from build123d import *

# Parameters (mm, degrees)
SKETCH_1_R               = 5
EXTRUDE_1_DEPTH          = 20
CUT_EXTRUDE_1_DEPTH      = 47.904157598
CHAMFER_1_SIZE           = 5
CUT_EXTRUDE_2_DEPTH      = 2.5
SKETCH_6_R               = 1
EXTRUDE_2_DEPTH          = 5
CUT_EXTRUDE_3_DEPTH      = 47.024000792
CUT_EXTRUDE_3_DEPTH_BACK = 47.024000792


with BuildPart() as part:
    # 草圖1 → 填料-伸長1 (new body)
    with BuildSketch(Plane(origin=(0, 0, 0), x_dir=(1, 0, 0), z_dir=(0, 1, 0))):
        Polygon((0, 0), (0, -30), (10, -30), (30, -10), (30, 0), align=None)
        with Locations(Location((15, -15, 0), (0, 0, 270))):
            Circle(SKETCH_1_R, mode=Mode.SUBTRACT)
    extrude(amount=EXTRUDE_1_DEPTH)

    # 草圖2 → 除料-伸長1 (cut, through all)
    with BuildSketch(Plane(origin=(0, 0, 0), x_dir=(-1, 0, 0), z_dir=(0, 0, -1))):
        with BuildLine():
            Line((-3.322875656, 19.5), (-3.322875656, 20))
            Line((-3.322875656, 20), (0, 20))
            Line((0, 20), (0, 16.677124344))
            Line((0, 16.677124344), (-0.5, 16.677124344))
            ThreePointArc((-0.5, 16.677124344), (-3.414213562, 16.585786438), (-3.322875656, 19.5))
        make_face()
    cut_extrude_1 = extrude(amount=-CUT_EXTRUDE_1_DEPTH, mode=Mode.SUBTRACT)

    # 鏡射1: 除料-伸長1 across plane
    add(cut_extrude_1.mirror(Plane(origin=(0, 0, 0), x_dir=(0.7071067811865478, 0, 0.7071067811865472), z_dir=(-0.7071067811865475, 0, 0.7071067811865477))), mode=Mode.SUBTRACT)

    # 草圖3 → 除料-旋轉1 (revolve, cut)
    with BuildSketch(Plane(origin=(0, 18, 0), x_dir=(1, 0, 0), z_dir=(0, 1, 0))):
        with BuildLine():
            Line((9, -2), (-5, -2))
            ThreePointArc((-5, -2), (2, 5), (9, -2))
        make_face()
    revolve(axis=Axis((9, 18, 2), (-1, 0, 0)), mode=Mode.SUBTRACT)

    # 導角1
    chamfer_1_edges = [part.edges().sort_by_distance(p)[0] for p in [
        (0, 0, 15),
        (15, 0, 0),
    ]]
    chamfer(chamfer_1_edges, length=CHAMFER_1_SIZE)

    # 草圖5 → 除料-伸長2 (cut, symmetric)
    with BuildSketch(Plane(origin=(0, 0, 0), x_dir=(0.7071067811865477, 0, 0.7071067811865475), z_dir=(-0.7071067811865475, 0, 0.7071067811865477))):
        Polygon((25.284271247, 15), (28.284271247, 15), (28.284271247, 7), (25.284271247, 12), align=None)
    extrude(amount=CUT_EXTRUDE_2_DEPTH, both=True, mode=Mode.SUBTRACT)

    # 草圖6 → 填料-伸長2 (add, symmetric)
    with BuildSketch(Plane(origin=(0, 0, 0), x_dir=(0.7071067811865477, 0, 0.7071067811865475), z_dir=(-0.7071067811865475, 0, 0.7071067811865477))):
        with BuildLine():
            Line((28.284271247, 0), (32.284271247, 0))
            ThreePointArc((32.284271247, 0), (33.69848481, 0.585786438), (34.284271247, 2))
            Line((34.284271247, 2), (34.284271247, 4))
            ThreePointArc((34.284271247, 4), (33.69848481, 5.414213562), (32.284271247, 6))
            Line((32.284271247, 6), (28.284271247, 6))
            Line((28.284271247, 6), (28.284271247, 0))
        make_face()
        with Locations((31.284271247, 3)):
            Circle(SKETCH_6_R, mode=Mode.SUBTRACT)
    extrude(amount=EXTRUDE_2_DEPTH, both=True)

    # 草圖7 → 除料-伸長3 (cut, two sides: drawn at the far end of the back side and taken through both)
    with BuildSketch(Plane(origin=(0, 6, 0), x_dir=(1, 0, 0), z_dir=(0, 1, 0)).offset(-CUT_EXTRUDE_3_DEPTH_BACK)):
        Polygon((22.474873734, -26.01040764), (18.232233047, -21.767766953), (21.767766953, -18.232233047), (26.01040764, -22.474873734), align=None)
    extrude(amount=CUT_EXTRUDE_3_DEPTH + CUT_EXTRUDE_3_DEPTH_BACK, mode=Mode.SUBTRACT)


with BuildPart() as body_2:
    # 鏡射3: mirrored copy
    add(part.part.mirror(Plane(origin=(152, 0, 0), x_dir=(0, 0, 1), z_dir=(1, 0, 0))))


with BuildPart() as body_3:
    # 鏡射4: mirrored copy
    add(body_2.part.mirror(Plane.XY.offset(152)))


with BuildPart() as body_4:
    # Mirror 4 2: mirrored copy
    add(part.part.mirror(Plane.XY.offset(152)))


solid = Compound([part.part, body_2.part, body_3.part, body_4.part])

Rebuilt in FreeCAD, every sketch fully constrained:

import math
import FreeCAD as App
import Part
import Sketcher

V = App.Vector
Q = App.Units.Quantity


def edges_at(feature, points):
    """Names of the edges that pass closest to the given points."""
    edges = feature.Shape.Edges
    near = lambda p: min(range(len(edges)), key=lambda i: edges[i].distToShape(Part.Vertex(*p))[0])
    return sorted({f"Edge{near(p) + 1}" for p in points})

doc = App.newDocument("Part")
body = doc.addObject("PartDesign::Body", "Body")

sketch1 = body.newObject("Sketcher::SketchObject", "Sketch")
sketch1.AttachmentSupport = (doc.getObject("XZ_Plane"), [""])
sketch1.MapMode = "FlatFace"
sketch1.addGeometry(Part.LineSegment(V(0, 0, 0), V(0, 30, 0)), False)
sketch1.addGeometry(Part.LineSegment(V(0, 30, 0), V(10, 30, 0)), False)
sketch1.addGeometry(Part.LineSegment(V(10, 30, 0), V(30, 10, 0)), False)
sketch1.addGeometry(Part.LineSegment(V(30, 10, 0), V(30, 0, 0)), False)
sketch1.addGeometry(Part.LineSegment(V(30, 0, 0), V(0, 0, 0)), False)
sketch1.addGeometry(Part.Circle(V(15, 15, 0), V(0, 0, 1), 5), False)
sketch1.addConstraint(Sketcher.Constraint("Coincident", 0, 2, 1, 1))
sketch1.addConstraint(Sketcher.Constraint("Coincident", 1, 2, 2, 1))
sketch1.addConstraint(Sketcher.Constraint("Coincident", 2, 2, 3, 1))
sketch1.addConstraint(Sketcher.Constraint("Coincident", 3, 2, 4, 1))
sketch1.addConstraint(Sketcher.Constraint("Coincident", 4, 2, 0, 1))
sketch1.addConstraint(Sketcher.Constraint("Vertical", 0))
sketch1.addConstraint(Sketcher.Constraint("Horizontal", 1))
sketch1.addConstraint(Sketcher.Constraint("Vertical", 3))
sketch1.addConstraint(Sketcher.Constraint("Horizontal", 4))
sketch1.addConstraint(Sketcher.Constraint("Coincident", 4, 2, -1, 1))
sketch1.addConstraint(Sketcher.Constraint("Equal", 4, 0))
sketch1.addConstraint(Sketcher.Constraint("Equal", 1, 3))
sketch1.addConstraint(Sketcher.Constraint("Diameter", 5, Q("10 mm")))
sketch1.addConstraint(Sketcher.Constraint("DistanceX", 1, 1, 1, 2, Q("10 mm")))
sketch1.addConstraint(Sketcher.Constraint("DistanceX", 4, 2, 4, 1, Q("30 mm")))
sketch1.addConstraint(Sketcher.Constraint("DistanceX", -1, 1, 5, 3, Q("15 mm")))
sketch1.addConstraint(Sketcher.Constraint("DistanceY", -1, 1, 5, 3, Q("15 mm")))
pad1 = body.newObject("PartDesign::Pad", "Pad")
pad1.Profile = sketch1
pad1.Length = 20
pad1.Reversed = True

sketch2 = body.newObject("Sketcher::SketchObject", "Sketch001")
sketch2.AttachmentSupport = (doc.getObject("XY_Plane"), [""])
sketch2.MapMode = "FlatFace"
sketch2.addGeometry(Part.LineSegment(V(3.322876, 20, 0), V(3.322876, 19.5, 0)), False)
sketch2.addGeometry(Part.ArcOfCircle(Part.Circle(V(2, 18, 0), V(0, 0, 1), 2), math.radians(-138.590378), math.radians(48.590378)), False)
sketch2.addGeometry(Part.LineSegment(V(0.5, 16.677124, 0), V(0, 16.677124, 0)), False)
sketch2.addGeometry(Part.LineSegment(V(0, 16.677124, 0), V(0, 20, 0)), False)
sketch2.addGeometry(Part.LineSegment(V(0, 20, 0), V(3.322876, 20, 0)), False)
sketch2.addConstraint(Sketcher.Constraint("Coincident", 0, 2, 1, 2))
sketch2.addConstraint(Sketcher.Constraint("Coincident", 1, 1, 2, 1))
sketch2.addConstraint(Sketcher.Constraint("Coincident", 2, 2, 3, 1))
sketch2.addConstraint(Sketcher.Constraint("Coincident", 3, 2, 4, 1))
sketch2.addConstraint(Sketcher.Constraint("Coincident", 4, 2, 0, 1))
sketch2.addConstraint(Sketcher.Constraint("Vertical", 0))
sketch2.addConstraint(Sketcher.Constraint("Horizontal", 2))
sketch2.addConstraint(Sketcher.Constraint("Vertical", 3))
sketch2.addConstraint(Sketcher.Constraint("Horizontal", 4))
sketch2.addConstraint(Sketcher.Constraint("PointOnObject", 2, 2, -2))
sketch2.addConstraint(Sketcher.Constraint("Equal", 2, 0))
sketch2.addConstraint(Sketcher.Constraint("Equal", 4, 3))
sketch2.addConstraint(Sketcher.Constraint("Radius", 1, Q("2 mm")))
sketch2.addConstraint(Sketcher.Constraint("DistanceX", 2, 2, 2, 1, Q("0.5 mm")))
sketch2.addConstraint(Sketcher.Constraint("DistanceX", -1, 1, 1, 3, Q("2 mm")))
sketch2.addConstraint(Sketcher.Constraint("DistanceY", -1, 1, 1, 3, Q("18 mm")))
pocket1 = body.newObject("PartDesign::Pocket", "Pocket")
pocket1.Profile = sketch2
pocket1.Type = "ThroughAll"
pocket1.Reversed = True
doc.recompute()

datumplane = body.newObject("PartDesign::Plane", "DatumPlane")
datumplane.Placement = App.Placement(V(0, 0, 0), App.Rotation(V(-0.707106781, 0, -0.707106781), V(0, -1, 0), V(-0.707106781, 0, 0.707106781), "ZXY"))
mirrored = body.newObject("PartDesign::Mirrored", "Mirrored")
mirrored.Originals = [pocket1]
mirrored.MirrorPlane = (datumplane, [""])
body.Tip = mirrored

sketch3 = body.newObject("Sketcher::SketchObject", "Sketch002")
sketch3.AttachmentSupport = (doc.getObject("XZ_Plane"), [""])
sketch3.MapMode = "FlatFace"
sketch3.AttachmentOffset = App.Placement(V(0, 0, -18), App.Rotation())
sketch3.addGeometry(Part.LineSegment(V(-5, 2, 0), V(9, 2, 0)), False)
sketch3.addGeometry(Part.ArcOfCircle(Part.Circle(V(2, 2, 0), V(0, 0, 1), 7), math.radians(180), math.radians(360)), False)
sketch3.addGeometry(Part.LineSegment(V(9, 2, 0), V(-5, 2, 0)), True)
sketch3.addConstraint(Sketcher.Constraint("Coincident", 0, 1, 1, 1))
sketch3.addConstraint(Sketcher.Constraint("Coincident", 1, 2, 0, 2))
sketch3.addConstraint(Sketcher.Constraint("Horizontal", 0))
sketch3.addConstraint(Sketcher.Constraint("Horizontal", 2))
sketch3.addConstraint(Sketcher.Constraint("Coincident", 2, 1, 1, 2))
sketch3.addConstraint(Sketcher.Constraint("Horizontal", 1, 3, 0, 1))
sketch3.addConstraint(Sketcher.Constraint("Equal", 0, 2))
sketch3.addConstraint(Sketcher.Constraint("Radius", 1, Q("7 mm")))
sketch3.addConstraint(Sketcher.Constraint("DistanceX", -1, 1, 1, 3, Q("2 mm")))
sketch3.addConstraint(Sketcher.Constraint("DistanceY", -1, 1, 1, 3, Q("2 mm")))
groove = body.newObject("PartDesign::Groove", "Groove")
groove.Profile = sketch3
groove.ReferenceAxis = (sketch3, ["Axis0"])
groove.Angle = 360
doc.recompute()

chamfer = body.newObject("PartDesign::Chamfer", "Chamfer")
chamfer.Base = (groove, edges_at(groove, [(0, 0, 15), (15, 0, 0)]))
chamfer.Size = 5

sketch4 = body.newObject("Sketcher::SketchObject", "Sketch003")
sketch4.Placement = App.Placement(V(0, 0, 0), App.Rotation(V(0.707106781, 0, 0.707106781), V(0, 0.999999999, 0), V(-0.707106781, 0, 0.707106781), "ZXY"))
sketch4.addGeometry(Part.LineSegment(V(28.284271, 15, 0), V(25.284271, 15, 0)), False)
sketch4.addGeometry(Part.LineSegment(V(25.284271, 15, 0), V(25.284271, 12, 0)), False)
sketch4.addGeometry(Part.LineSegment(V(25.284271, 12, 0), V(28.284271, 7, 0)), False)
sketch4.addGeometry(Part.LineSegment(V(28.284271, 7, 0), V(28.284271, 15, 0)), False)
sketch4.addConstraint(Sketcher.Constraint("Coincident", 0, 2, 1, 1))
sketch4.addConstraint(Sketcher.Constraint("Coincident", 1, 2, 2, 1))
sketch4.addConstraint(Sketcher.Constraint("Coincident", 2, 2, 3, 1))
sketch4.addConstraint(Sketcher.Constraint("Coincident", 3, 2, 0, 1))
sketch4.addConstraint(Sketcher.Constraint("Horizontal", 0))
sketch4.addConstraint(Sketcher.Constraint("Vertical", 1))
sketch4.addConstraint(Sketcher.Constraint("Vertical", 3))
sketch4.addConstraint(Sketcher.Constraint("Equal", 0, 1))
sketch4.addConstraint(Sketcher.Constraint("DistanceX", 0, 2, 0, 1, Q("3 mm")))
sketch4.addConstraint(Sketcher.Constraint("DistanceY", 3, 1, 3, 2, Q("8 mm")))
sketch4.addConstraint(Sketcher.Constraint("DistanceY", -1, 1, 0, 2, Q("15 mm")))
sketch4.addConstraint(Sketcher.Constraint("DistanceX", -1, 1, 0, 2, Q("25.284271 mm")))
pocket2 = body.newObject("PartDesign::Pocket", "Pocket001")
pocket2.Profile = sketch4
pocket2.Length = 5
pocket2.Midplane = True

sketch5 = body.newObject("Sketcher::SketchObject", "Sketch004")
sketch5.Placement = App.Placement(V(0, 0, 0), App.Rotation(V(0.707106781, 0, 0.707106781), V(0, 0.999999999, 0), V(-0.707106781, 0, 0.707106781), "ZXY"))
sketch5.addGeometry(Part.LineSegment(V(28.284271, 0, 0), V(32.284271, 0, 0)), False)
sketch5.addGeometry(Part.ArcOfCircle(Part.Circle(V(32.284271, 2, 0), V(0, 0, 1), 2), math.radians(-90), math.radians(0)), False)
sketch5.addGeometry(Part.LineSegment(V(34.284271, 2, 0), V(34.284271, 4, 0)), False)
sketch5.addGeometry(Part.ArcOfCircle(Part.Circle(V(32.284271, 4, 0), V(0, 0, 1), 2), math.radians(0), math.radians(90)), False)
sketch5.addGeometry(Part.LineSegment(V(32.284271, 6, 0), V(28.284271, 6, 0)), False)
sketch5.addGeometry(Part.LineSegment(V(28.284271, 6, 0), V(28.284271, 0, 0)), False)
sketch5.addGeometry(Part.Circle(V(31.284271, 3, 0), V(0, 0, 1), 1), False)
sketch5.addConstraint(Sketcher.Constraint("Tangent", 0, 2, 1, 1))
sketch5.addConstraint(Sketcher.Constraint("Tangent", 1, 2, 2, 1))
sketch5.addConstraint(Sketcher.Constraint("Tangent", 2, 2, 3, 1))
sketch5.addConstraint(Sketcher.Constraint("Tangent", 3, 2, 4, 1))
sketch5.addConstraint(Sketcher.Constraint("Coincident", 4, 2, 5, 1))
sketch5.addConstraint(Sketcher.Constraint("Coincident", 5, 2, 0, 1))
sketch5.addConstraint(Sketcher.Constraint("Horizontal", 0))
sketch5.addConstraint(Sketcher.Constraint("Vertical", 2))
sketch5.addConstraint(Sketcher.Constraint("Horizontal", 4))
sketch5.addConstraint(Sketcher.Constraint("Vertical", 5))
sketch5.addConstraint(Sketcher.Constraint("Equal", 1, 3))
sketch5.addConstraint(Sketcher.Constraint("PointOnObject", 0, 2, -1))
sketch5.addConstraint(Sketcher.Constraint("Diameter", 6, Q("2 mm")))
sketch5.addConstraint(Sketcher.Constraint("Radius", 1, Q("2 mm")))
sketch5.addConstraint(Sketcher.Constraint("DistanceX", 0, 1, 0, 2, Q("4 mm")))
sketch5.addConstraint(Sketcher.Constraint("DistanceY", 2, 1, 2, 2, Q("2 mm")))
sketch5.addConstraint(Sketcher.Constraint("DistanceY", -1, 1, 6, 3, Q("3 mm")))
sketch5.addConstraint(Sketcher.Constraint("DistanceX", 6, 3, 3, 3, Q("1 mm")))
sketch5.addConstraint(Sketcher.Constraint("DistanceX", -1, 1, 1, 3, Q("32.284271 mm")))
pad2 = body.newObject("PartDesign::Pad", "Pad001")
pad2.Profile = sketch5
pad2.Length = 10
pad2.Midplane = True

sketch6 = body.newObject("Sketcher::SketchObject", "Sketch005")
sketch6.AttachmentSupport = (doc.getObject("XZ_Plane"), [""])
sketch6.MapMode = "FlatFace"
sketch6.AttachmentOffset = App.Placement(V(0, 0, -6), App.Rotation())
sketch6.addGeometry(Part.LineSegment(V(18.232233, 21.767767, 0), V(22.474874, 26.010408, 0)), False)
sketch6.addGeometry(Part.LineSegment(V(22.474874, 26.010408, 0), V(26.010408, 22.474874, 0)), False)
sketch6.addGeometry(Part.LineSegment(V(26.010408, 22.474874, 0), V(21.767767, 18.232233, 0)), False)
sketch6.addGeometry(Part.LineSegment(V(21.767767, 18.232233, 0), V(18.232233, 21.767767, 0)), False)
sketch6.addConstraint(Sketcher.Constraint("Coincident", 0, 2, 1, 1))
sketch6.addConstraint(Sketcher.Constraint("Coincident", 1, 2, 2, 1))
sketch6.addConstraint(Sketcher.Constraint("Coincident", 2, 2, 3, 1))
sketch6.addConstraint(Sketcher.Constraint("Coincident", 3, 2, 0, 1))
sketch6.addConstraint(Sketcher.Constraint("Perpendicular", 0, 1))
sketch6.addConstraint(Sketcher.Constraint("Perpendicular", 1, 2))
sketch6.addConstraint(Sketcher.Constraint("Perpendicular", 2, 3))
sketch6.addConstraint(Sketcher.Constraint("Angle", 0, Q("45 deg")))
sketch6.addConstraint(Sketcher.Constraint("Distance", 0, Q("6 mm")))
sketch6.addConstraint(Sketcher.Constraint("Distance", 1, Q("5 mm")))
sketch6.addConstraint(Sketcher.Constraint("DistanceX", -1, 1, 0, 2, Q("22.474874 mm")))
sketch6.addConstraint(Sketcher.Constraint("DistanceY", -1, 1, 0, 2, Q("26.010408 mm")))
pocket3 = body.newObject("PartDesign::Pocket", "Pocket002")
pocket3.Profile = sketch6
pocket3.Type = "ThroughAll"
pocket3.Midplane = True
body2 = doc.addObject("PartDesign::Body", "Body001")
doc.recompute()

mirroring = doc.addObject("Part::Mirroring", "Mirroring")
mirroring.Source = body
mirroring.Base = V(152, 0, 0)
mirroring.Normal = V(1, 0, 0)
body2.BaseFeature = mirroring
doc.recompute()
body3 = doc.addObject("PartDesign::Body", "Body002")
doc.recompute()

mirroring2 = doc.addObject("Part::Mirroring", "Mirroring001")
mirroring2.Source = body2
mirroring2.Base = V(0, 0, 152)
mirroring2.Normal = V(0, 0, 1)
body3.BaseFeature = mirroring2
doc.recompute()
body4 = doc.addObject("PartDesign::Body", "Body003")
doc.recompute()

mirroring3 = doc.addObject("Part::Mirroring", "Mirroring002")
mirroring3.Source = body
mirroring3.Base = V(0, 0, 152)
mirroring3.Normal = V(0, 0, 1)
body4.BaseFeature = mirroring3
doc.recompute()
mirroring.Visibility = False
mirroring2.Visibility = False
mirroring3.Visibility = False

doc.recompute()
